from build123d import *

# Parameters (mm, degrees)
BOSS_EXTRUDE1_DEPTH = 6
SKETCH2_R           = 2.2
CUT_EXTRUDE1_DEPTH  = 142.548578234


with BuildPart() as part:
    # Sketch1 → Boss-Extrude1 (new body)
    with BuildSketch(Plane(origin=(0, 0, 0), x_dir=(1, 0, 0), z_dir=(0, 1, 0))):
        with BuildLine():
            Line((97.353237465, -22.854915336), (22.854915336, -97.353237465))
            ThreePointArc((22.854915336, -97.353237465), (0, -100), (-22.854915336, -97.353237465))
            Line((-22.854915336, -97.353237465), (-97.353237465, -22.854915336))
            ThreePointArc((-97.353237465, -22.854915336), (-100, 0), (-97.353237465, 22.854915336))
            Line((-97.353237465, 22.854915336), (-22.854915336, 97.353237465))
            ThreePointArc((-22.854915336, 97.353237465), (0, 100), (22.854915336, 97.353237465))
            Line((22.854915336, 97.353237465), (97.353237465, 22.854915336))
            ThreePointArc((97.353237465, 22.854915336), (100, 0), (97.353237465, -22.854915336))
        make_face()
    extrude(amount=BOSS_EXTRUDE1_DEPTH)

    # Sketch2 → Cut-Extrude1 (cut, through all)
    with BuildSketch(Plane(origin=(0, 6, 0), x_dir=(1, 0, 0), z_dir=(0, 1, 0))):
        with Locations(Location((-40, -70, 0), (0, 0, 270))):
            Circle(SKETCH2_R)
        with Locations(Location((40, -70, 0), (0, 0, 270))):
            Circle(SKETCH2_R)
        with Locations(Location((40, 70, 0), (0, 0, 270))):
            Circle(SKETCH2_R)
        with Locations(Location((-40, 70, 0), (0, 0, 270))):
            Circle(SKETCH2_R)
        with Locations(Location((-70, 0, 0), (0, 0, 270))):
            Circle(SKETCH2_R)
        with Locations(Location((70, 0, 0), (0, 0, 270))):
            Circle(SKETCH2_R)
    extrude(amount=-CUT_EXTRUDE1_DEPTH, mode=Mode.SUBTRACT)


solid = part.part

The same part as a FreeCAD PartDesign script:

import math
import FreeCAD as App
import Part
import Sketcher
Q = App.Units.Quantity

doc = App.newDocument("Part")
params = doc.addObject("Spreadsheet::Sheet", "Params")
for row, (alias, value) in enumerate([
    ("sketch1_radius", "100 mm"),
    ("pad1_length", "6 mm"),
    ("sketch2_diameter", "4.4 mm"),
], start=1):
    params.set(f"A{row}", alias)
    params.set(f"B{row}", "=" + value)
    params.setAlias(f"B{row}", alias)

body = doc.addObject("PartDesign::Body", "Body")

# Sketch on XZ plane
sketch1 = body.newObject("Sketcher::SketchObject", "Sketch")
sketch1.AttachmentSupport = (doc.getObject("XZ_Plane"), [""])
sketch1.MapMode = "FlatFace"
sketch1.addGeometry(Part.LineSegment(App.Vector(23, 97, 0), App.Vector(97, 23, 0)), False)
sketch1.addGeometry(Part.ArcOfCircle(Part.Circle(App.Vector(0, 0, 0), App.Vector(0, 0, 1), 100), math.radians(-13), math.radians(13)), False)
sketch1.addGeometry(Part.LineSegment(App.Vector(97, -23, 0), App.Vector(23, -97, 0)), False)
sketch1.addGeometry(Part.ArcOfCircle(Part.Circle(App.Vector(0, 0, 0), App.Vector(0, 0, 1), 100), math.radians(-103), math.radians(-77)), False)
sketch1.addGeometry(Part.LineSegment(App.Vector(-23, -97, 0), App.Vector(-97, -23, 0)), False)
sketch1.addGeometry(Part.ArcOfCircle(Part.Circle(App.Vector(0, 0, 0), App.Vector(0, 0, 1), 100), math.radians(167), math.radians(193)), False)
sketch1.addGeometry(Part.LineSegment(App.Vector(-97, 23, 0), App.Vector(-23, 97, 0)), False)
sketch1.addGeometry(Part.ArcOfCircle(Part.Circle(App.Vector(0, 0, 0), App.Vector(0, 0, 1), 100), math.radians(77), math.radians(103)), False)
sketch1.addConstraint(Sketcher.Constraint("Coincident", 0, 2, 1, 2))
sketch1.addConstraint(Sketcher.Constraint("Coincident", 1, 1, 2, 1))
sketch1.addConstraint(Sketcher.Constraint("Coincident", 2, 2, 3, 2))
sketch1.addConstraint(Sketcher.Constraint("Coincident", 3, 1, 4, 1))
sketch1.addConstraint(Sketcher.Constraint("Coincident", 4, 2, 5, 2))
sketch1.addConstraint(Sketcher.Constraint("Coincident", 5, 1, 6, 1))
sketch1.addConstraint(Sketcher.Constraint("Coincident", 6, 2, 7, 2))
sketch1.addConstraint(Sketcher.Constraint("Coincident", 7, 1, 0, 1))
sketch1.addConstraint(Sketcher.Constraint("Coincident", 1, 3, -1, 1))
sketch1.addConstraint(Sketcher.Constraint("Coincident", 3, 3, -1, 1))
sketch1.addConstraint(Sketcher.Constraint("Coincident", 5, 3, -1, 1))
sketch1.addConstraint(Sketcher.Constraint("Coincident", 7, 3, -1, 1))
sketch1.addConstraint(Sketcher.Constraint("Equal", 1, 3))
sketch1.addConstraint(Sketcher.Constraint("Equal", 3, 5))
sketch1.addConstraint(Sketcher.Constraint("Equal", 5, 7))
sketch1.addConstraint(Sketcher.Constraint("Perpendicular", 0, 2))
sketch1.addConstraint(Sketcher.Constraint("Perpendicular", 2, 4))
sketch1.addConstraint(Sketcher.Constraint("Perpendicular", 4, 6))
sketch1.addConstraint(Sketcher.Constraint("Horizontal", 2, 2, 3, 1))
sketch1.addConstraint(Sketcher.Constraint("Horizontal", 1, 1, 4, 2))
sketch1.addConstraint(Sketcher.Constraint("Horizontal", 0, 2, 5, 1))
sketch1.addConstraint(Sketcher.Constraint("Vertical", 0, 2, 1, 1))
sketch1.addConstraint(Sketcher.Constraint("Radius", 1, Q("100 mm")))
sketch1.addConstraint(Sketcher.Constraint("DistanceY", 1, 1, 0, 2, Q("45.709831 mm")))
sketch1.setExpression("Constraints[22]", "Params.sketch1_radius")
pad1 = body.newObject("PartDesign::Pad", "Pad")
pad1.Profile = sketch1
pad1.setExpression("Length", "Params.pad1_length")
pad1.Reversed = True

# Sketch on XZ plane
sketch2 = body.newObject("Sketcher::SketchObject", "Sketch001")
sketch2.AttachmentSupport = (doc.getObject("XZ_Plane"), [""])
sketch2.MapMode = "FlatFace"
sketch2.AttachmentOffset = App.Placement(App.Vector(0, 0, -6), App.Rotation())
sketch2.addGeometry(Part.Circle(App.Vector(-40, 70, 0), App.Vector(0, 0, 1), 2.2), False)
sketch2.addGeometry(Part.Circle(App.Vector(40, 70, 0), App.Vector(0, 0, 1), 2.2), False)
sketch2.addGeometry(Part.Circle(App.Vector(40, -70, 0), App.Vector(0, 0, 1), 2.2), False)
sketch2.addGeometry(Part.Circle(App.Vector(-40, -70, 0), App.Vector(0, 0, 1), 2.2), False)
sketch2.addGeometry(Part.Circle(App.Vector(-70, 0, 0), App.Vector(0, 0, 1), 2.2), False)
sketch2.addGeometry(Part.Circle(App.Vector(70, 0, 0), App.Vector(0, 0, 1), 2.2), False)
sketch2.addConstraint(Sketcher.Constraint("Equal", 0, 1))
sketch2.addConstraint(Sketcher.Constraint("Equal", 1, 2))
sketch2.addConstraint(Sketcher.Constraint("Equal", 2, 3))
sketch2.addConstraint(Sketcher.Constraint("Equal", 3, 4))
sketch2.addConstraint(Sketcher.Constraint("Equal", 4, 5))
sketch2.addConstraint(Sketcher.Constraint("Symmetric", 0, 3, 2, 3, -1, 1))
sketch2.addConstraint(Sketcher.Constraint("Symmetric", 1, 3, 3, 3, -1, 1))
sketch2.addConstraint(Sketcher.Constraint("Symmetric", 4, 3, 5, 3, -1, 1))
sketch2.addConstraint(Sketcher.Constraint("Symmetric", 0, 3, 1, 3, -2))
sketch2.addConstraint(Sketcher.Constraint("PointOnObject", 4, 3, -1))
sketch2.addConstraint(Sketcher.Constraint("Diameter", 0, Q("4.4 mm")))
sketch2.addConstraint(Sketcher.Constraint("DistanceX", 0, 3, -1, 1, Q("40 mm")))
sketch2.addConstraint(Sketcher.Constraint("DistanceY", -1, 1, 0, 3, Q("70 mm")))
sketch2.addConstraint(Sketcher.Constraint("DistanceX", 4, 3, -1, 1, Q("70 mm")))
sketch2.setExpression("Constraints[10]", "Params.sketch2_diameter")
pocket1 = body.newObject("PartDesign::Pocket", "Pocket")
pocket1.Profile = sketch2
pocket1.Type = "ThroughAll"
pocket1.Reversed = True

doc.recompute()
